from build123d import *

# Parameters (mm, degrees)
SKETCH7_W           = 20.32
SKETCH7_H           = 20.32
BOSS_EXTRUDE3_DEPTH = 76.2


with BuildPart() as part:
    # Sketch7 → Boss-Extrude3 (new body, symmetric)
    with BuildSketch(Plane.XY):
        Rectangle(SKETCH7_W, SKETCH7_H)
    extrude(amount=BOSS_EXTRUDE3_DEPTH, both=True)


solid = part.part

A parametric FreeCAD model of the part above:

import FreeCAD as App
import Part
import Sketcher

V = App.Vector
Q = App.Units.Quantity


def add_polygon(sketch, points):
    """Adds a closed chain of lines whose ends are joined by coincident constraints."""
    first, n = sketch.GeometryCount, len(points)
    for a, b in zip(points, points[1:] + points[:1]):
        sketch.addGeometry(Part.LineSegment(App.Vector(*a, 0), App.Vector(*b, 0)), False)
    for i in range(n):
        sketch.addConstraint(Sketcher.Constraint("Coincident", first + i, 2, first + (i + 1) % n, 1))

doc = App.newDocument("Part")
body = doc.addObject("PartDesign::Body", "Body")

# Sketch on XY plane
sketch1 = body.newObject("Sketcher::SketchObject", "Sketch")
sketch1.AttachmentSupport = (doc.getObject("XY_Plane"), [""])
sketch1.MapMode = "FlatFace"
add_polygon(sketch1, [(-10.16, 10.16), (-10.16, -10.16), (10.16, -10.16), (10.16, 10.16)])  # lines 0-3
sketch1.addConstraint(Sketcher.Constraint("Vertical", 0))
sketch1.addConstraint(Sketcher.Constraint("Horizontal", 1))
sketch1.addConstraint(Sketcher.Constraint("Vertical", 2))
sketch1.addConstraint(Sketcher.Constraint("Horizontal", 3))
sketch1.addConstraint(Sketcher.Constraint("Symmetric", 0, 2, 2, 2, -1, 1))
sketch1.addConstraint(Sketcher.Constraint("Equal", 3, 0))
sketch1.addConstraint(Sketcher.Constraint("DistanceX", 1, 1, 1, 2, Q("0.8 in")))
pad1 = body.newObject("PartDesign::Pad", "Pad")
pad1.Profile = sketch1
pad1.Length = Q("6 in")
pad1.Midplane = True

doc.recompute()
